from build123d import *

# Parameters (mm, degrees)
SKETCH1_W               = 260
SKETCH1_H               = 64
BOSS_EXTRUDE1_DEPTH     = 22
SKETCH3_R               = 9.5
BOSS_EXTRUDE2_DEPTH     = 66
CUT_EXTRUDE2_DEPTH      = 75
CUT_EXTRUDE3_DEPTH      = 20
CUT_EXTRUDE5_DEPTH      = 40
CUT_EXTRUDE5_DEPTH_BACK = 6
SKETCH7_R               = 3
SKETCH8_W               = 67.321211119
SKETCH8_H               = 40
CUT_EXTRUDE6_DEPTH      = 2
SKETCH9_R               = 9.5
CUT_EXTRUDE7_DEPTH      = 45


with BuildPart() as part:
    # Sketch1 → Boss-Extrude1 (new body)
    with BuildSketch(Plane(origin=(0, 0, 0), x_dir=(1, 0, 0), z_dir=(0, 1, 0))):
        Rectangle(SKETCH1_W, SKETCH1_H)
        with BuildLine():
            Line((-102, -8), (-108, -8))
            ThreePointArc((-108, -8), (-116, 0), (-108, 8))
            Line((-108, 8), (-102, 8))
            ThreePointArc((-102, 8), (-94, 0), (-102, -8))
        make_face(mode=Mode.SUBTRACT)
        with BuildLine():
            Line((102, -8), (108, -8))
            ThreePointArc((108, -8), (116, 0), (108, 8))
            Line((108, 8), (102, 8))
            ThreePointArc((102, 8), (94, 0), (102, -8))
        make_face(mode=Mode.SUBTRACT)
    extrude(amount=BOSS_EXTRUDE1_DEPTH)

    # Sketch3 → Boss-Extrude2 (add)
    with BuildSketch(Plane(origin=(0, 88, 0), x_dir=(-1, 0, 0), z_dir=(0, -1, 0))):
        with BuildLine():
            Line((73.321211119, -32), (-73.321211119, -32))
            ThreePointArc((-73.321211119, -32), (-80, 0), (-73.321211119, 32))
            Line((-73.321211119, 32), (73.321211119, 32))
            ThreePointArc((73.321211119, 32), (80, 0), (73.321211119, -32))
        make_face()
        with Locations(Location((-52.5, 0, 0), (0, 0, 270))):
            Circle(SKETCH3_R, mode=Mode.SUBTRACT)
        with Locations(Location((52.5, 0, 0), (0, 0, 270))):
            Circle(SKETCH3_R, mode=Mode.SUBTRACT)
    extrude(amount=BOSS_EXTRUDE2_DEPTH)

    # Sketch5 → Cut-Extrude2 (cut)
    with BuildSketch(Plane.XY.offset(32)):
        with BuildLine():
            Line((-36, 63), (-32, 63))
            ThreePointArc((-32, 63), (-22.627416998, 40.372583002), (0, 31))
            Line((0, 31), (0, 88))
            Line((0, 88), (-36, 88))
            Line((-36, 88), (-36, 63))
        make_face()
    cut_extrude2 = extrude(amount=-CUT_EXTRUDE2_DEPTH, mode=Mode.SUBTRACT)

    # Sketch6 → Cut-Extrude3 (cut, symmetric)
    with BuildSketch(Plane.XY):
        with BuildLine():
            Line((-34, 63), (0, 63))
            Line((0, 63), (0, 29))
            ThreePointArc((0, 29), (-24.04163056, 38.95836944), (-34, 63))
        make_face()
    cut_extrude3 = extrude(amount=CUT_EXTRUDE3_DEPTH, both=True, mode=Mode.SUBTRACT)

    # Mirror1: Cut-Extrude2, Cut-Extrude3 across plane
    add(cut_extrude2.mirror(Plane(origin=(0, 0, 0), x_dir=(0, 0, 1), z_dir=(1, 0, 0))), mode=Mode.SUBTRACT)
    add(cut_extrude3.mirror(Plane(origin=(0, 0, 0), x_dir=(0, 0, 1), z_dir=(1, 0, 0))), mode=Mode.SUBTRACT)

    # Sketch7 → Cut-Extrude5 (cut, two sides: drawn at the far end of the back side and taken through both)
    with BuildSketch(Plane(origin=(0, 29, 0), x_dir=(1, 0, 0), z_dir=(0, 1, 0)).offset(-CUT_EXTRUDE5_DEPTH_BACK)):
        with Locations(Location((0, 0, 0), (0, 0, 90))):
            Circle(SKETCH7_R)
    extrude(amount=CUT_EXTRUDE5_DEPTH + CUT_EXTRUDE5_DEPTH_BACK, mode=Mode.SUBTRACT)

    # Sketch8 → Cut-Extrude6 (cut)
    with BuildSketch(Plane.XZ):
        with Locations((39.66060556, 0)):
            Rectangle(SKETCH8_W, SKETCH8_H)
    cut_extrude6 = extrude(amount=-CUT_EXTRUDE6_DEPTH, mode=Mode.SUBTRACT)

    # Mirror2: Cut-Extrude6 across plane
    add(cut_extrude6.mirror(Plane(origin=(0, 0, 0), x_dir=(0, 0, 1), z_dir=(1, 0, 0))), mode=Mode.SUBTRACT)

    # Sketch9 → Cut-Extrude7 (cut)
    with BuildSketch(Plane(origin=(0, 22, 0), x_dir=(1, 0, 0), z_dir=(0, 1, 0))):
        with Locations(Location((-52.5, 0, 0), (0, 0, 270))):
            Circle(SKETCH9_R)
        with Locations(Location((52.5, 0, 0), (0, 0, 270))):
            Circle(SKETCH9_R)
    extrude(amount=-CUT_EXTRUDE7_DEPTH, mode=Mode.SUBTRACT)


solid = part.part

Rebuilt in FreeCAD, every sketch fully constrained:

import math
import FreeCAD as App
import Part
import Sketcher

doc = App.newDocument("Part")
body = doc.addObject("PartDesign::Body", "Body")

# Sketch on XZ plane
sketch1 = body.newObject("Sketcher::SketchObject", "Sketch")
sketch1.AttachmentSupport = (doc.getObject("XZ_Plane"), [""])
sketch1.MapMode = "FlatFace"
sketch1.addGeometry(Part.LineSegment(App.Vector(-130, -32, 0), App.Vector(-130, 32, 0)), False)
sketch1.addGeometry(Part.LineSegment(App.Vector(-130, 32, 0), App.Vector(130, 32, 0)), False)
sketch1.addGeometry(Part.LineSegment(App.Vector(130, 32, 0), App.Vector(130, -32, 0)), False)
sketch1.addGeometry(Part.LineSegment(App.Vector(130, -32, 0), App.Vector(-130, -32, 0)), False)
sketch1.addGeometry(Part.ArcOfCircle(Part.Circle(App.Vector(-102, 0, 0), App.Vector(0, 0, 1), 8), math.radians(-90), math.radians(90)), False)
sketch1.addGeometry(Part.LineSegment(App.Vector(-102, 8, 0), App.Vector(-108, 8, 0)), False)
sketch1.addGeometry(Part.ArcOfCircle(Part.Circle(App.Vector(-108, 0, 0), App.Vector(0, 0, 1), 8), math.radians(90), math.radians(270)), False)
sketch1.addGeometry(Part.LineSegment(App.Vector(-108, -8, 0), App.Vector(-102, -8, 0)), False)
sketch1.addGeometry(Part.LineSegment(App.Vector(108, 8, 0), App.Vector(102, 8, 0)), False)
sketch1.addGeometry(Part.ArcOfCircle(Part.Circle(App.Vector(102, 0, 0), App.Vector(0, 0, 1), 8), math.radians(90), math.radians(270)), False)
sketch1.addGeometry(Part.LineSegment(App.Vector(102, -8, 0), App.Vector(108, -8, 0)), False)
sketch1.addGeometry(Part.ArcOfCircle(Part.Circle(App.Vector(108, 0, 0), App.Vector(0, 0, 1), 8), math.radians(-90), math.radians(90)), False)
sketch1.addConstraint(Sketcher.Constraint("Coincident", 0, 2, 1, 1))
sketch1.addConstraint(Sketcher.Constraint("Coincident", 1, 2, 2, 1))
sketch1.addConstraint(Sketcher.Constraint("Coincident", 2, 2, 3, 1))
sketch1.addConstraint(Sketcher.Constraint("Coincident", 3, 2, 0, 1))
sketch1.addConstraint(Sketcher.Constraint("Tangent", 4, 2, 5, 1))
sketch1.addConstraint(Sketcher.Constraint("Tangent", 5, 2, 6, 1))
sketch1.addConstraint(Sketcher.Constraint("Tangent", 6, 2, 7, 1))
sketch1.addConstraint(Sketcher.Constraint("Tangent", 7, 2, 4, 1))
sketch1.addConstraint(Sketcher.Constraint("Tangent", 8, 2, 9, 1))
sketch1.addConstraint(Sketcher.Constraint("Tangent", 9, 2, 10, 1))
sketch1.addConstraint(Sketcher.Constraint("Tangent", 10, 2, 11, 1))
sketch1.addConstraint(Sketcher.Constraint("Tangent", 11, 2, 8, 1))
sketch1.addConstraint(Sketcher.Constraint("Vertical", 0))
sketch1.addConstraint(Sketcher.Constraint("Horizontal", 1))
sketch1.addConstraint(Sketcher.Constraint("Vertical", 2))
sketch1.addConstraint(Sketcher.Constraint("Horizontal", 3))
sketch1.addConstraint(Sketcher.Constraint("Horizontal", 5))
sketch1.addConstraint(Sketcher.Constraint("Horizontal", 7))
sketch1.addConstraint(Sketcher.Constraint("Horizontal", 8))
sketch1.addConstraint(Sketcher.Constraint("Horizontal", 10))
sketch1.addConstraint(Sketcher.Constraint("Equal", 6, 9))
sketch1.addConstraint(Sketcher.Constraint("Symmetric", 4, 3, 9, 3, -1, 1))
sketch1.addConstraint(Sketcher.Constraint("Symmetric", 0, 2, 2, 2, -1, 1))
sketch1.addConstraint(Sketcher.Constraint("Symmetric", 6, 3, 11, 3, -2))
sketch1.addConstraint(Sketcher.Constraint("Radius", 4, 8.0))
sketch1.addConstraint(Sketcher.Constraint("DistanceX", 1, 1, 1, 2, 260.0))
sketch1.addConstraint(Sketcher.Constraint("DistanceX", 5, 2, 5, 1, 6.0))
sketch1.addConstraint(Sketcher.Constraint("DistanceY", 0, 1, 0, 2, 64.0))
sketch1.addConstraint(Sketcher.Constraint("DistanceX", 4, 3, -1, 1, 102.0))
pad1 = body.newObject("PartDesign::Pad", "Pad")
pad1.Profile = sketch1
pad1.Length = 22
pad1.Reversed = True

# Sketch on XZ plane
sketch2 = body.newObject("Sketcher::SketchObject", "Sketch001")
sketch2.AttachmentSupport = (doc.getObject("XZ_Plane"), [""])
sketch2.MapMode = "FlatFace"
sketch2.AttachmentOffset = App.Placement(App.Vector(0, 0, -88), App.Rotation())
sketch2.addGeometry(Part.LineSegment(App.Vector(73.321211, 32, 0), App.Vector(-73.321211, 32, 0)), False)
sketch2.addGeometry(Part.ArcOfCircle(Part.Circle(App.Vector(0, 0, 0), App.Vector(0, 0, 1), 80), math.radians(156.421822), math.radians(203.578178)), False)
sketch2.addGeometry(Part.LineSegment(App.Vector(-73.321211, -32, 0), App.Vector(73.321211, -32, 0)), False)
sketch2.addGeometry(Part.ArcOfCircle(Part.Circle(App.Vector(0, 0, 0), App.Vector(0, 0, 1), 80), math.radians(-23.578178), math.radians(23.578178)), False)
sketch2.addGeometry(Part.Circle(App.Vector(-52.5, 0, 0), App.Vector(0, 0, 1), 9.5), False)
sketch2.addGeometry(Part.Circle(App.Vector(52.5, 0, 0), App.Vector(0, 0, 1), 9.5), False)
sketch2.addConstraint(Sketcher.Constraint("Coincident", 0, 2, 1, 1))
sketch2.addConstraint(Sketcher.Constraint("Coincident", 1, 2, 2, 1))
sketch2.addConstraint(Sketcher.Constraint("Coincident", 2, 2, 3, 1))
sketch2.addConstraint(Sketcher.Constraint("Coincident", 3, 2, 0, 1))
sketch2.addConstraint(Sketcher.Constraint("Horizontal", 0))
sketch2.addConstraint(Sketcher.Constraint("Horizontal", 2))
sketch2.addConstraint(Sketcher.Constraint("Coincident", 1, 3, -1, 1))
sketch2.addConstraint(Sketcher.Constraint("Coincident", 3, 3, -1, 1))
sketch2.addConstraint(Sketcher.Constraint("Equal", 1, 3))
sketch2.addConstraint(Sketcher.Constraint("Equal", 4, 5))
sketch2.addConstraint(Sketcher.Constraint("Symmetric", 4, 3, 5, 3, -1, 1))
sketch2.addConstraint(Sketcher.Constraint("PointOnObject", 4, 3, -1))
sketch2.addConstraint(Sketcher.Constraint("Vertical", 0, 2, 1, 2))
sketch2.addConstraint(Sketcher.Constraint("Diameter", 4, 19.0))
sketch2.addConstraint(Sketcher.Constraint("Radius", 1, 80.0))
sketch2.addConstraint(Sketcher.Constraint("DistanceY", -1, 1, 0, 2, 32.0))
sketch2.addConstraint(Sketcher.Constraint("DistanceX", 4, 3, 5, 3, 105.0))
pad2 = body.newObject("PartDesign::Pad", "Pad001")
pad2.Profile = sketch2
pad2.Length = 66

# Sketch on XY plane
sketch3 = body.newObject("Sketcher::SketchObject", "Sketch002")
sketch3.AttachmentSupport = (doc.getObject("XY_Plane"), [""])
sketch3.MapMode = "FlatFace"
sketch3.AttachmentOffset = App.Placement(App.Vector(0, 0, 32), App.Rotation())
sketch3.addGeometry(Part.LineSegment(App.Vector(-36, 63, 0), App.Vector(-32, 63, 0)), False)
sketch3.addGeometry(Part.ArcOfCircle(Part.Circle(App.Vector(0, 63, 0), App.Vector(0, 0, 1), 32), math.radians(180), math.radians(270)), False)
sketch3.addGeometry(Part.LineSegment(App.Vector(0, 31, 0), App.Vector(0, 88, 0)), False)
sketch3.addGeometry(Part.LineSegment(App.Vector(0, 88, 0), App.Vector(-36, 88, 0)), False)
sketch3.addGeometry(Part.LineSegment(App.Vector(-36, 88, 0), App.Vector(-36, 63, 0)), False)
sketch3.addConstraint(Sketcher.Constraint("Coincident", 0, 2, 1, 1))
sketch3.addConstraint(Sketcher.Constraint("Coincident", 1, 2, 2, 1))
sketch3.addConstraint(Sketcher.Constraint("Coincident", 2, 2, 3, 1))
sketch3.addConstraint(Sketcher.Constraint("Coincident", 3, 2, 4, 1))
sketch3.addConstraint(Sketcher.Constraint("Coincident", 4, 2, 0, 1))
sketch3.addConstraint(Sketcher.Constraint("Horizontal", 0))
sketch3.addConstraint(Sketcher.Constraint("Vertical", 2))
sketch3.addConstraint(Sketcher.Constraint("Horizontal", 3))
sketch3.addConstraint(Sketcher.Constraint("Vertical", 4))
sketch3.addConstraint(Sketcher.Constraint("PointOnObject", 1, 3, -2))
sketch3.addConstraint(Sketcher.Constraint("PointOnObject", 1, 2, -2))
sketch3.addConstraint(Sketcher.Constraint("Horizontal", 1, 3, 0, 2))
sketch3.addConstraint(Sketcher.Constraint("Radius", 1, 32.0))
sketch3.addConstraint(Sketcher.Constraint("DistanceX", 0, 1, 0, 2, 4.0))
sketch3.addConstraint(Sketcher.Constraint("DistanceY", 2, 1, 2, 2, 57.0))
sketch3.addConstraint(Sketcher.Constraint("DistanceY", -1, 1, 1, 3, 63.0))
pocket1 = body.newObject("PartDesign::Pocket", "Pocket")
pocket1.Profile = sketch3
pocket1.Length = 75

# Sketch on XY plane
sketch4 = body.newObject("Sketcher::SketchObject", "Sketch003")
sketch4.AttachmentSupport = (doc.getObject("XY_Plane"), [""])
sketch4.MapMode = "FlatFace"
sketch4.addGeometry(Part.LineSegment(App.Vector(0, 63, 0), App.Vector(-34, 63, 0)), False)
sketch4.addGeometry(Part.ArcOfCircle(Part.Circle(App.Vector(0, 63, 0), App.Vector(0, 0, 1), 34), math.radians(-180), math.radians(-90)), False)
sketch4.addGeometry(Part.LineSegment(App.Vector(0, 29, 0), App.Vector(0, 63, 0)), False)
sketch4.addConstraint(Sketcher.Constraint("Coincident", 0, 2, 1, 1))
sketch4.addConstraint(Sketcher.Constraint("Coincident", 1, 2, 2, 1))
sketch4.addConstraint(Sketcher.Constraint("Coincident", 2, 2, 0, 1))
sketch4.addConstraint(Sketcher.Constraint("Horizontal", 0))
sketch4.addConstraint(Sketcher.Constraint("Vertical", 2))
sketch4.addConstraint(Sketcher.Constraint("Coincident", 2, 2, 1, 3))
sketch4.addConstraint(Sketcher.Constraint("PointOnObject", 1, 3, -2))
sketch4.addConstraint(Sketcher.Constraint("Radius", 1, 34.0))
sketch4.addConstraint(Sketcher.Constraint("DistanceY", -1, 1, 1, 3, 63.0))
pocket2 = body.newObject("PartDesign::Pocket", "Pocket001")
pocket2.Profile = sketch4
pocket2.Length = 40
pocket2.Midplane = True
doc.recompute()

mirrored = body.newObject("PartDesign::Mirrored", "Mirrored")
mirrored.Originals = [pocket1, pocket2]
mirrored.MirrorPlane = (doc.getObject("YZ_Plane"), [""])
body.Tip = mirrored

# Sketch on XZ plane
sketch5 = body.newObject("Sketcher::SketchObject", "Sketch004")
sketch5.AttachmentSupport = (doc.getObject("XZ_Plane"), [""])
sketch5.MapMode = "FlatFace"
sketch5.AttachmentOffset = App.Placement(App.Vector(0, 0, -29), App.Rotation())
sketch5.addGeometry(Part.Circle(App.Vector(0, 0, 0), App.Vector(0, 0, 1), 3), False)
sketch5.addConstraint(Sketcher.Constraint("Coincident", 0, 3, -1, 1))
sketch5.addConstraint(Sketcher.Constraint("Diameter", 0, 6.0))
pocket3 = body.newObject("PartDesign::Pocket", "Pocket002")
pocket3.Profile = sketch5
pocket3.Type = "TwoLengths"
pocket3.Length = 40
pocket3.Length2 = 6

# Sketch on XZ plane
sketch6 = body.newObject("Sketcher::SketchObject", "Sketch005")
sketch6.AttachmentSupport = (doc.getObject("XZ_Plane"), [""])
sketch6.MapMode = "FlatFace"
sketch6.addGeometry(Part.LineSegment(App.Vector(6, 20, 0), App.Vector(6, -20, 0)), False)
sketch6.addGeometry(Part.LineSegment(App.Vector(6, -20, 0), App.Vector(73.321211, -20, 0)), False)
sketch6.addGeometry(Part.LineSegment(App.Vector(73.321211, -20, 0), App.Vector(73.321211, 20, 0)), False)
sketch6.addGeometry(Part.LineSegment(App.Vector(73.321211, 20, 0), App.Vector(6, 20, 0)), False)
sketch6.addConstraint(Sketcher.Constraint("Coincident", 0, 2, 1, 1))
sketch6.addConstraint(Sketcher.Constraint("Coincident", 1, 2, 2, 1))
sketch6.addConstraint(Sketcher.Constraint("Coincident", 2, 2, 3, 1))
sketch6.addConstraint(Sketcher.Constraint("Coincident", 3, 2, 0, 1))
sketch6.addConstraint(Sketcher.Constraint("Vertical", 0))
sketch6.addConstraint(Sketcher.Constraint("Horizontal", 1))
sketch6.addConstraint(Sketcher.Constraint("Vertical", 2))
sketch6.addConstraint(Sketcher.Constraint("Horizontal", 3))
sketch6.addConstraint(Sketcher.Constraint("DistanceY", 0, 2, 0, 1, 40.0))
sketch6.addConstraint(Sketcher.Constraint("DistanceX", -1, 1, 0, 2, 6.0))
sketch6.addConstraint(Sketcher.Constraint("DistanceY", 0, 2, -1, 1, 20.0))
sketch6.addConstraint(Sketcher.Constraint("DistanceX", 1, 1, 1, 2, 67.321211))
pocket4 = body.newObject("PartDesign::Pocket", "Pocket003")
pocket4.Profile = sketch6
pocket4.Length = 2
doc.recompute()

mirrored2 = body.newObject("PartDesign::Mirrored", "Mirrored001")
mirrored2.Originals = [pocket4]
mirrored2.MirrorPlane = (doc.getObject("YZ_Plane"), [""])
body.Tip = mirrored2

# Sketch on XZ plane
sketch7 = body.newObject("Sketcher::SketchObject", "Sketch006")
sketch7.AttachmentSupport = (doc.getObject("XZ_Plane"), [""])
sketch7.MapMode = "FlatFace"
sketch7.AttachmentOffset = App.Placement(App.Vector(0, 0, -22), App.Rotation())
sketch7.addGeometry(Part.Circle(App.Vector(-52.5, 0, 0), App.Vector(0, 0, 1), 9.5), False)
sketch7.addGeometry(Part.Circle(App.Vector(52.5, 0, 0), App.Vector(0, 0, 1), 9.5), False)
sketch7.addConstraint(Sketcher.Constraint("Equal", 0, 1))
sketch7.addConstraint(Sketcher.Constraint("Symmetric", 0, 3, 1, 3, -1, 1))
sketch7.addConstraint(Sketcher.Constraint("PointOnObject", 0, 3, -1))
sketch7.addConstraint(Sketcher.Constraint("Diameter", 0, 19.0))
sketch7.addConstraint(Sketcher.Constraint("DistanceX", 0, 3, 1, 3, 105.0))
pocket5 = body.newObject("PartDesign::Pocket", "Pocket004")
pocket5.Profile = sketch7
pocket5.Length = 45
pocket5.Reversed = True

doc.recompute()
